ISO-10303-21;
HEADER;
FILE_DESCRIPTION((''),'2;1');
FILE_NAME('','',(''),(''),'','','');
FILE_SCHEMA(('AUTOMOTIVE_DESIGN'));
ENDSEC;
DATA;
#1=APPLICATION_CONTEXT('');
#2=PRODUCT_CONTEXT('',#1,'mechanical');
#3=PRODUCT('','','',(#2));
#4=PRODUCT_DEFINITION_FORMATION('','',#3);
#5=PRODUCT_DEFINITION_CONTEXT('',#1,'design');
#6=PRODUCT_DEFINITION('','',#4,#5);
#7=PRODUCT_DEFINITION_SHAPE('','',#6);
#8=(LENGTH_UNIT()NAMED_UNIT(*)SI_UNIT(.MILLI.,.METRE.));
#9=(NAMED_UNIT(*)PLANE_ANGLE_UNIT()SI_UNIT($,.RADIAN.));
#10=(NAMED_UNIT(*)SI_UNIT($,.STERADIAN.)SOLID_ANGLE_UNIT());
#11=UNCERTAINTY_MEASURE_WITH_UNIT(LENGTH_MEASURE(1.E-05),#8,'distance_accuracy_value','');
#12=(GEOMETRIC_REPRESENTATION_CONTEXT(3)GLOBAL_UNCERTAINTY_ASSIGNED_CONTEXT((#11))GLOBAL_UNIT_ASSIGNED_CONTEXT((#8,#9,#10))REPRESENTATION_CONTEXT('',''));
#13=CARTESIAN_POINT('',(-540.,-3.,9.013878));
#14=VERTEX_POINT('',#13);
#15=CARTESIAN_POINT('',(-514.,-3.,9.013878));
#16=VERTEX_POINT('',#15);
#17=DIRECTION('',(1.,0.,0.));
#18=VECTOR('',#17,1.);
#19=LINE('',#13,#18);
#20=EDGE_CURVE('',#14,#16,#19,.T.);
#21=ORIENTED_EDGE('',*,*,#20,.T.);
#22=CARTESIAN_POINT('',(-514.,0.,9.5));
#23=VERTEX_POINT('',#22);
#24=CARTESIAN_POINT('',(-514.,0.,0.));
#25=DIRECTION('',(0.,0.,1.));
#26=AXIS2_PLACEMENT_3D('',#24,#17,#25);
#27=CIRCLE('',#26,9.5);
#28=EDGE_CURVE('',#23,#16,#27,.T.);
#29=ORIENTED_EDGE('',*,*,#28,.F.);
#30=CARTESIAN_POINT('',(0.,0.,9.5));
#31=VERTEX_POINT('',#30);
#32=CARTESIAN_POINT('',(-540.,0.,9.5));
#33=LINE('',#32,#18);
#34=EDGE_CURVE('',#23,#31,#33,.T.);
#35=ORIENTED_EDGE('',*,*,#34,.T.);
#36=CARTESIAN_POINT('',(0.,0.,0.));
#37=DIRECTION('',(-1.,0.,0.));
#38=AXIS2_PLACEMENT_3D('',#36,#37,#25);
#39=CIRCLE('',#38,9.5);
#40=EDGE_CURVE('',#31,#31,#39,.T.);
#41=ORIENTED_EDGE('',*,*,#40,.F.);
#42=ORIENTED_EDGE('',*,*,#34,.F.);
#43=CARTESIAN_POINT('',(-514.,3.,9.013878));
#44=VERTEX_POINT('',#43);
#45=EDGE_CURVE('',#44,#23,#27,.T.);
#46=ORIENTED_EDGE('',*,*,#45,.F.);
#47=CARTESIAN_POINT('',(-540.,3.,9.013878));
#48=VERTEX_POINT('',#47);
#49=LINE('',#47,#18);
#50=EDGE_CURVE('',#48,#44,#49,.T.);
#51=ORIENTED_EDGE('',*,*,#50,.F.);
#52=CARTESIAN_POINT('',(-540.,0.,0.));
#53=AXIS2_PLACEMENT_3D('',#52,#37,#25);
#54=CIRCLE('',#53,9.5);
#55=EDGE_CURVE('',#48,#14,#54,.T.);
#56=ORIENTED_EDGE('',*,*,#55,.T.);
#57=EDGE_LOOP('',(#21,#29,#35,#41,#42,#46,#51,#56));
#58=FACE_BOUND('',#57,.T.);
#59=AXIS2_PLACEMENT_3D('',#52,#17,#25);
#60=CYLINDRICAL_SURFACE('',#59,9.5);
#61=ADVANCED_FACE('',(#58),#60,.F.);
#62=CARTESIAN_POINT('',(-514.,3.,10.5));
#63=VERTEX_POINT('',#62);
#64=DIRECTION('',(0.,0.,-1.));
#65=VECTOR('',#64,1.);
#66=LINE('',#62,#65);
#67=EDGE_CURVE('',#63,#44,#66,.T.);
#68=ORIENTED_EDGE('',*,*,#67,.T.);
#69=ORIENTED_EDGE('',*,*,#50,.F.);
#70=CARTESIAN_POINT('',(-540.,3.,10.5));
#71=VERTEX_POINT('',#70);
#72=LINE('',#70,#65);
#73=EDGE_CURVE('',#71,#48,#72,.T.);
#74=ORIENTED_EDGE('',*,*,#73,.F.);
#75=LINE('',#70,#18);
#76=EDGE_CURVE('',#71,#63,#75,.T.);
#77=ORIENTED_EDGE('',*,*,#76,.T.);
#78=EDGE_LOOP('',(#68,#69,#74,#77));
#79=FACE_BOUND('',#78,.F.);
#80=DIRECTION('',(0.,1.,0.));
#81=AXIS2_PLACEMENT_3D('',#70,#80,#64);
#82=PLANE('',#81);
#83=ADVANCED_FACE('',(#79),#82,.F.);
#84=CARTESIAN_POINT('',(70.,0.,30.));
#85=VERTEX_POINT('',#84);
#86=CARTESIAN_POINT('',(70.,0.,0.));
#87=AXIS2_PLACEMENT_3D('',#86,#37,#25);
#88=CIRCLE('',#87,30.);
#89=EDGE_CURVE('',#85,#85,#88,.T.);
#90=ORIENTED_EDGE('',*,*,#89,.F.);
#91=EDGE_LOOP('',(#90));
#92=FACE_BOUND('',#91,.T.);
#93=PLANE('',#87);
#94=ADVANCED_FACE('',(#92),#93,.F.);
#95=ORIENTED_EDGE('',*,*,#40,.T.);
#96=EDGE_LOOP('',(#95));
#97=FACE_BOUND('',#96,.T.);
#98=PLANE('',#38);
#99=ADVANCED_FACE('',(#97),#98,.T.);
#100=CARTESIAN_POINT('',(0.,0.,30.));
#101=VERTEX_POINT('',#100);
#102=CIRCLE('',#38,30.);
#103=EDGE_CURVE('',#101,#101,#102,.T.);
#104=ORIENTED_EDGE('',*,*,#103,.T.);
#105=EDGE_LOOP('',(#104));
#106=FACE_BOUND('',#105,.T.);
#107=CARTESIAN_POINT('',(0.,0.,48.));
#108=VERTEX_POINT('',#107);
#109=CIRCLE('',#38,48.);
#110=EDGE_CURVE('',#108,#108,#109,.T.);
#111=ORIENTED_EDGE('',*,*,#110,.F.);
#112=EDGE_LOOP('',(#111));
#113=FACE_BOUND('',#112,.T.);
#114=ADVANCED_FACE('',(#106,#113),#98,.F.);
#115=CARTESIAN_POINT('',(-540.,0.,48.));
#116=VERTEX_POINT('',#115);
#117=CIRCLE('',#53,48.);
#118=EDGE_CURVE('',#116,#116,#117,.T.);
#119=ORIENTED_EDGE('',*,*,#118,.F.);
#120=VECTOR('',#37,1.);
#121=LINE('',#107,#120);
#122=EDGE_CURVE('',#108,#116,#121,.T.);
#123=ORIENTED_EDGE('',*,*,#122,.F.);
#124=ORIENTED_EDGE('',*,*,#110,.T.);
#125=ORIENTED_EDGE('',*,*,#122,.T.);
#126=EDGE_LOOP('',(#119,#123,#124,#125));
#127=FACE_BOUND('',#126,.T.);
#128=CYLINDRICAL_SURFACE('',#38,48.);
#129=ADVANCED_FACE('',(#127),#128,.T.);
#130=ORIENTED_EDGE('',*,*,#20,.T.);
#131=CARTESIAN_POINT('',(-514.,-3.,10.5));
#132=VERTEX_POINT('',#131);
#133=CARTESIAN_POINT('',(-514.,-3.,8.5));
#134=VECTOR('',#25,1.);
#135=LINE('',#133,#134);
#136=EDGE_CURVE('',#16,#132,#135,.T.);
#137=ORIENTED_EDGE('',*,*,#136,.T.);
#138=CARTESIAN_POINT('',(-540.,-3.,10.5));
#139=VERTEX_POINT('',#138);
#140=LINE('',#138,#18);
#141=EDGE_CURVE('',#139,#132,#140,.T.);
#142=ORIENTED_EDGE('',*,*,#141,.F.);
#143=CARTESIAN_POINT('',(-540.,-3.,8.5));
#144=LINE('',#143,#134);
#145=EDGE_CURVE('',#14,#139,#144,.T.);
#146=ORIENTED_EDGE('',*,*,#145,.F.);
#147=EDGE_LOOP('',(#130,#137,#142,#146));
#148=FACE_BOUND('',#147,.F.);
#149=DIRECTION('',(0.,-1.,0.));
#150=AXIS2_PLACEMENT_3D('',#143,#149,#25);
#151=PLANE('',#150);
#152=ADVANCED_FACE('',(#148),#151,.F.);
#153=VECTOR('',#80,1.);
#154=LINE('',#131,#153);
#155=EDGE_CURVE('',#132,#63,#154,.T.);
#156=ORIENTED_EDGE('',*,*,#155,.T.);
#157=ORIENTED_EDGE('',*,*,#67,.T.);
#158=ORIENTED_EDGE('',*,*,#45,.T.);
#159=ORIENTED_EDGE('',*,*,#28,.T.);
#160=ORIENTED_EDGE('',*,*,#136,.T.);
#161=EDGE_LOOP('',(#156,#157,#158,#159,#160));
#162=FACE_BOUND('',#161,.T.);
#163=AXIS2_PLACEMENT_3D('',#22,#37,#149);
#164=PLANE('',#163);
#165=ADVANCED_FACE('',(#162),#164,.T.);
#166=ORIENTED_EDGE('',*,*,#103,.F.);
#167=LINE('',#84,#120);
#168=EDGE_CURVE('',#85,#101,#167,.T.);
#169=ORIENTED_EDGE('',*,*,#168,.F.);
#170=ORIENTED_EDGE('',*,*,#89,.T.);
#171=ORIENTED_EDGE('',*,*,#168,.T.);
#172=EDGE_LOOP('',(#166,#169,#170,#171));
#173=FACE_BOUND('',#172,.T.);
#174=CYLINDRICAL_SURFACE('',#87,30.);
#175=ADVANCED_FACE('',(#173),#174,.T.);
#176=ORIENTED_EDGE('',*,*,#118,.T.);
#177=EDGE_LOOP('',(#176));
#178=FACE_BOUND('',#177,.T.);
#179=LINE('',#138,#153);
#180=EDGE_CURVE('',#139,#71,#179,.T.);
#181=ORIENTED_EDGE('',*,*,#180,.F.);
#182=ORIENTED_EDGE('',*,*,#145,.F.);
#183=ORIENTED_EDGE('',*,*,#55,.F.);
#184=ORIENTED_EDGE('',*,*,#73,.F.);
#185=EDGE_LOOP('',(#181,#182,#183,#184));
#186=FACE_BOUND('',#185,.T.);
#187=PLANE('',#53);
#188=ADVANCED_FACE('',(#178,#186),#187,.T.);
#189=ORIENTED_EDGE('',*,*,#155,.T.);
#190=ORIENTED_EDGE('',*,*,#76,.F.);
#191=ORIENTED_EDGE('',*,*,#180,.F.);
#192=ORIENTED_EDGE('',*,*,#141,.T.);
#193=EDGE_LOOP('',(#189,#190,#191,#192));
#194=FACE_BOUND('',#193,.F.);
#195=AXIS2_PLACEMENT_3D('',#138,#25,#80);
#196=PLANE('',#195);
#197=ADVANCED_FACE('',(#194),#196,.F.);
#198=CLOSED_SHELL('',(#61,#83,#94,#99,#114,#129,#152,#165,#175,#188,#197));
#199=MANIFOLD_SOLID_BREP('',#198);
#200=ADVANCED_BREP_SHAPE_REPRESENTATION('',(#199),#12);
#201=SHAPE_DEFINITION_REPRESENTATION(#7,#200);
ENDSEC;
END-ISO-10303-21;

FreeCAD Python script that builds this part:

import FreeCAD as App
import Part
import Sketcher
from FreeCAD import Vector
Q = App.Units.Quantity

doc = App.newDocument("Part")
body = doc.addObject("PartDesign::Body", "Body")

# Sketch on XZ plane
sketch1 = body.newObject("Sketcher::SketchObject", "Sketch")
sketch1.AttachmentSupport = (doc.getObject("XZ_Plane"), [""])
sketch1.MapMode = "FlatFace"
sketch1.addGeometry(Part.LineSegment(Vector(0, 0, 0), Vector(70, 0, 0)), False)
sketch1.addGeometry(Part.LineSegment(Vector(70, 0, 0), Vector(70, 30, 0)), False)
sketch1.addGeometry(Part.LineSegment(Vector(70, 30, 0), Vector(0, 30, 0)), False)
sketch1.addGeometry(Part.LineSegment(Vector(0, 30, 0), Vector(0, 48, 0)), False)
sketch1.addGeometry(Part.LineSegment(Vector(0, 48, 0), Vector(-540, 48, 0)), False)
sketch1.addGeometry(Part.LineSegment(Vector(-540, 48, 0), Vector(-540, 9.5, 0)), False)
sketch1.addGeometry(Part.LineSegment(Vector(-540, 9.5, 0), Vector(0, 9.5, 0)), False)
sketch1.addGeometry(Part.LineSegment(Vector(0, 9.5, 0), Vector(0, 0, 0)), False)
sketch1.addConstraint(Sketcher.Constraint("Coincident", 0, 2, 1, 1))
sketch1.addConstraint(Sketcher.Constraint("Coincident", 1, 2, 2, 1))
sketch1.addConstraint(Sketcher.Constraint("Coincident", 2, 2, 3, 1))
sketch1.addConstraint(Sketcher.Constraint("Coincident", 3, 2, 4, 1))
sketch1.addConstraint(Sketcher.Constraint("Coincident", 4, 2, 5, 1))
sketch1.addConstraint(Sketcher.Constraint("Coincident", 5, 2, 6, 1))
sketch1.addConstraint(Sketcher.Constraint("Coincident", 6, 2, 7, 1))
sketch1.addConstraint(Sketcher.Constraint("Coincident", 7, 2, 0, 1))
sketch1.addConstraint(Sketcher.Constraint("Horizontal", 0))
sketch1.addConstraint(Sketcher.Constraint("Vertical", 1))
sketch1.addConstraint(Sketcher.Constraint("Horizontal", 2))
sketch1.addConstraint(Sketcher.Constraint("Vertical", 3))
sketch1.addConstraint(Sketcher.Constraint("Horizontal", 4))
sketch1.addConstraint(Sketcher.Constraint("Vertical", 5))
sketch1.addConstraint(Sketcher.Constraint("Horizontal", 6))
sketch1.addConstraint(Sketcher.Constraint("Vertical", 7))
sketch1.addConstraint(Sketcher.Constraint("Coincident", 7, 2, -1, 1))
sketch1.addConstraint(Sketcher.Constraint("PointOnObject", 2, 2, -2))
sketch1.addConstraint(Sketcher.Constraint("DistanceX", 0, 1, 0, 2, Q("70 mm")))
sketch1.addConstraint(Sketcher.Constraint("DistanceX", 4, 2, 4, 1, Q("540 mm")))
sketch1.addConstraint(Sketcher.Constraint("DistanceY", 1, 1, 1, 2, Q("30 mm")))
sketch1.addConstraint(Sketcher.Constraint("DistanceY", 3, 1, 3, 2, Q("18 mm")))
sketch1.addConstraint(Sketcher.Constraint("DistanceY", 5, 2, 5, 1, Q("38.5 mm")))
revolution = body.newObject("PartDesign::Revolution", "Revolution")
revolution.Profile = sketch1
revolution.ReferenceAxis = (sketch1, ["H_Axis"])
revolution.Angle = 360

# Sketch on YZ plane
sketch2 = body.newObject("Sketcher::SketchObject", "Sketch001")
sketch2.AttachmentSupport = (doc.getObject("YZ_Plane"), [""])
sketch2.MapMode = "FlatFace"
sketch2.AttachmentOffset = App.Placement(Vector(0, 0, -540), App.Rotation())
sketch2.addGeometry(Part.LineSegment(Vector(3, 8.5, 0), Vector(-3, 8.5, 0)), False)
sketch2.addGeometry(Part.LineSegment(Vector(-3, 8.5, 0), Vector(-3, 10.5, 0)), False)
sketch2.addGeometry(Part.LineSegment(Vector(-3, 10.5, 0), Vector(3, 10.5, 0)), False)
sketch2.addGeometry(Part.LineSegment(Vector(3, 10.5, 0), Vector(3, 8.5, 0)), False)
sketch2.addConstraint(Sketcher.Constraint("Coincident", 0, 2, 1, 1))
sketch2.addConstraint(Sketcher.Constraint("Coincident", 1, 2, 2, 1))
sketch2.addConstraint(Sketcher.Constraint("Coincident", 2, 2, 3, 1))
sketch2.addConstraint(Sketcher.Constraint("Coincident", 3, 2, 0, 1))
sketch2.addConstraint(Sketcher.Constraint("Horizontal", 0))
sketch2.addConstraint(Sketcher.Constraint("Vertical", 1))
sketch2.addConstraint(Sketcher.Constraint("Horizontal", 2))
sketch2.addConstraint(Sketcher.Constraint("Vertical", 3))
sketch2.addConstraint(Sketcher.Constraint("DistanceX", 0, 2, 0, 1, Q("6 mm")))
sketch2.addConstraint(Sketcher.Constraint("DistanceY", 1, 1, 1, 2, Q("2 mm")))
sketch2.addConstraint(Sketcher.Constraint("DistanceX", 0, 2, -1, 1, Q("3 mm")))
sketch2.addConstraint(Sketcher.Constraint("DistanceY", -1, 1, 0, 2, Q("8.5 mm")))
pocket1 = body.newObject("PartDesign::Pocket", "Pocket")
pocket1.Profile = sketch2
pocket1.Length = 26
pocket1.Reversed = True

doc.recompute()
